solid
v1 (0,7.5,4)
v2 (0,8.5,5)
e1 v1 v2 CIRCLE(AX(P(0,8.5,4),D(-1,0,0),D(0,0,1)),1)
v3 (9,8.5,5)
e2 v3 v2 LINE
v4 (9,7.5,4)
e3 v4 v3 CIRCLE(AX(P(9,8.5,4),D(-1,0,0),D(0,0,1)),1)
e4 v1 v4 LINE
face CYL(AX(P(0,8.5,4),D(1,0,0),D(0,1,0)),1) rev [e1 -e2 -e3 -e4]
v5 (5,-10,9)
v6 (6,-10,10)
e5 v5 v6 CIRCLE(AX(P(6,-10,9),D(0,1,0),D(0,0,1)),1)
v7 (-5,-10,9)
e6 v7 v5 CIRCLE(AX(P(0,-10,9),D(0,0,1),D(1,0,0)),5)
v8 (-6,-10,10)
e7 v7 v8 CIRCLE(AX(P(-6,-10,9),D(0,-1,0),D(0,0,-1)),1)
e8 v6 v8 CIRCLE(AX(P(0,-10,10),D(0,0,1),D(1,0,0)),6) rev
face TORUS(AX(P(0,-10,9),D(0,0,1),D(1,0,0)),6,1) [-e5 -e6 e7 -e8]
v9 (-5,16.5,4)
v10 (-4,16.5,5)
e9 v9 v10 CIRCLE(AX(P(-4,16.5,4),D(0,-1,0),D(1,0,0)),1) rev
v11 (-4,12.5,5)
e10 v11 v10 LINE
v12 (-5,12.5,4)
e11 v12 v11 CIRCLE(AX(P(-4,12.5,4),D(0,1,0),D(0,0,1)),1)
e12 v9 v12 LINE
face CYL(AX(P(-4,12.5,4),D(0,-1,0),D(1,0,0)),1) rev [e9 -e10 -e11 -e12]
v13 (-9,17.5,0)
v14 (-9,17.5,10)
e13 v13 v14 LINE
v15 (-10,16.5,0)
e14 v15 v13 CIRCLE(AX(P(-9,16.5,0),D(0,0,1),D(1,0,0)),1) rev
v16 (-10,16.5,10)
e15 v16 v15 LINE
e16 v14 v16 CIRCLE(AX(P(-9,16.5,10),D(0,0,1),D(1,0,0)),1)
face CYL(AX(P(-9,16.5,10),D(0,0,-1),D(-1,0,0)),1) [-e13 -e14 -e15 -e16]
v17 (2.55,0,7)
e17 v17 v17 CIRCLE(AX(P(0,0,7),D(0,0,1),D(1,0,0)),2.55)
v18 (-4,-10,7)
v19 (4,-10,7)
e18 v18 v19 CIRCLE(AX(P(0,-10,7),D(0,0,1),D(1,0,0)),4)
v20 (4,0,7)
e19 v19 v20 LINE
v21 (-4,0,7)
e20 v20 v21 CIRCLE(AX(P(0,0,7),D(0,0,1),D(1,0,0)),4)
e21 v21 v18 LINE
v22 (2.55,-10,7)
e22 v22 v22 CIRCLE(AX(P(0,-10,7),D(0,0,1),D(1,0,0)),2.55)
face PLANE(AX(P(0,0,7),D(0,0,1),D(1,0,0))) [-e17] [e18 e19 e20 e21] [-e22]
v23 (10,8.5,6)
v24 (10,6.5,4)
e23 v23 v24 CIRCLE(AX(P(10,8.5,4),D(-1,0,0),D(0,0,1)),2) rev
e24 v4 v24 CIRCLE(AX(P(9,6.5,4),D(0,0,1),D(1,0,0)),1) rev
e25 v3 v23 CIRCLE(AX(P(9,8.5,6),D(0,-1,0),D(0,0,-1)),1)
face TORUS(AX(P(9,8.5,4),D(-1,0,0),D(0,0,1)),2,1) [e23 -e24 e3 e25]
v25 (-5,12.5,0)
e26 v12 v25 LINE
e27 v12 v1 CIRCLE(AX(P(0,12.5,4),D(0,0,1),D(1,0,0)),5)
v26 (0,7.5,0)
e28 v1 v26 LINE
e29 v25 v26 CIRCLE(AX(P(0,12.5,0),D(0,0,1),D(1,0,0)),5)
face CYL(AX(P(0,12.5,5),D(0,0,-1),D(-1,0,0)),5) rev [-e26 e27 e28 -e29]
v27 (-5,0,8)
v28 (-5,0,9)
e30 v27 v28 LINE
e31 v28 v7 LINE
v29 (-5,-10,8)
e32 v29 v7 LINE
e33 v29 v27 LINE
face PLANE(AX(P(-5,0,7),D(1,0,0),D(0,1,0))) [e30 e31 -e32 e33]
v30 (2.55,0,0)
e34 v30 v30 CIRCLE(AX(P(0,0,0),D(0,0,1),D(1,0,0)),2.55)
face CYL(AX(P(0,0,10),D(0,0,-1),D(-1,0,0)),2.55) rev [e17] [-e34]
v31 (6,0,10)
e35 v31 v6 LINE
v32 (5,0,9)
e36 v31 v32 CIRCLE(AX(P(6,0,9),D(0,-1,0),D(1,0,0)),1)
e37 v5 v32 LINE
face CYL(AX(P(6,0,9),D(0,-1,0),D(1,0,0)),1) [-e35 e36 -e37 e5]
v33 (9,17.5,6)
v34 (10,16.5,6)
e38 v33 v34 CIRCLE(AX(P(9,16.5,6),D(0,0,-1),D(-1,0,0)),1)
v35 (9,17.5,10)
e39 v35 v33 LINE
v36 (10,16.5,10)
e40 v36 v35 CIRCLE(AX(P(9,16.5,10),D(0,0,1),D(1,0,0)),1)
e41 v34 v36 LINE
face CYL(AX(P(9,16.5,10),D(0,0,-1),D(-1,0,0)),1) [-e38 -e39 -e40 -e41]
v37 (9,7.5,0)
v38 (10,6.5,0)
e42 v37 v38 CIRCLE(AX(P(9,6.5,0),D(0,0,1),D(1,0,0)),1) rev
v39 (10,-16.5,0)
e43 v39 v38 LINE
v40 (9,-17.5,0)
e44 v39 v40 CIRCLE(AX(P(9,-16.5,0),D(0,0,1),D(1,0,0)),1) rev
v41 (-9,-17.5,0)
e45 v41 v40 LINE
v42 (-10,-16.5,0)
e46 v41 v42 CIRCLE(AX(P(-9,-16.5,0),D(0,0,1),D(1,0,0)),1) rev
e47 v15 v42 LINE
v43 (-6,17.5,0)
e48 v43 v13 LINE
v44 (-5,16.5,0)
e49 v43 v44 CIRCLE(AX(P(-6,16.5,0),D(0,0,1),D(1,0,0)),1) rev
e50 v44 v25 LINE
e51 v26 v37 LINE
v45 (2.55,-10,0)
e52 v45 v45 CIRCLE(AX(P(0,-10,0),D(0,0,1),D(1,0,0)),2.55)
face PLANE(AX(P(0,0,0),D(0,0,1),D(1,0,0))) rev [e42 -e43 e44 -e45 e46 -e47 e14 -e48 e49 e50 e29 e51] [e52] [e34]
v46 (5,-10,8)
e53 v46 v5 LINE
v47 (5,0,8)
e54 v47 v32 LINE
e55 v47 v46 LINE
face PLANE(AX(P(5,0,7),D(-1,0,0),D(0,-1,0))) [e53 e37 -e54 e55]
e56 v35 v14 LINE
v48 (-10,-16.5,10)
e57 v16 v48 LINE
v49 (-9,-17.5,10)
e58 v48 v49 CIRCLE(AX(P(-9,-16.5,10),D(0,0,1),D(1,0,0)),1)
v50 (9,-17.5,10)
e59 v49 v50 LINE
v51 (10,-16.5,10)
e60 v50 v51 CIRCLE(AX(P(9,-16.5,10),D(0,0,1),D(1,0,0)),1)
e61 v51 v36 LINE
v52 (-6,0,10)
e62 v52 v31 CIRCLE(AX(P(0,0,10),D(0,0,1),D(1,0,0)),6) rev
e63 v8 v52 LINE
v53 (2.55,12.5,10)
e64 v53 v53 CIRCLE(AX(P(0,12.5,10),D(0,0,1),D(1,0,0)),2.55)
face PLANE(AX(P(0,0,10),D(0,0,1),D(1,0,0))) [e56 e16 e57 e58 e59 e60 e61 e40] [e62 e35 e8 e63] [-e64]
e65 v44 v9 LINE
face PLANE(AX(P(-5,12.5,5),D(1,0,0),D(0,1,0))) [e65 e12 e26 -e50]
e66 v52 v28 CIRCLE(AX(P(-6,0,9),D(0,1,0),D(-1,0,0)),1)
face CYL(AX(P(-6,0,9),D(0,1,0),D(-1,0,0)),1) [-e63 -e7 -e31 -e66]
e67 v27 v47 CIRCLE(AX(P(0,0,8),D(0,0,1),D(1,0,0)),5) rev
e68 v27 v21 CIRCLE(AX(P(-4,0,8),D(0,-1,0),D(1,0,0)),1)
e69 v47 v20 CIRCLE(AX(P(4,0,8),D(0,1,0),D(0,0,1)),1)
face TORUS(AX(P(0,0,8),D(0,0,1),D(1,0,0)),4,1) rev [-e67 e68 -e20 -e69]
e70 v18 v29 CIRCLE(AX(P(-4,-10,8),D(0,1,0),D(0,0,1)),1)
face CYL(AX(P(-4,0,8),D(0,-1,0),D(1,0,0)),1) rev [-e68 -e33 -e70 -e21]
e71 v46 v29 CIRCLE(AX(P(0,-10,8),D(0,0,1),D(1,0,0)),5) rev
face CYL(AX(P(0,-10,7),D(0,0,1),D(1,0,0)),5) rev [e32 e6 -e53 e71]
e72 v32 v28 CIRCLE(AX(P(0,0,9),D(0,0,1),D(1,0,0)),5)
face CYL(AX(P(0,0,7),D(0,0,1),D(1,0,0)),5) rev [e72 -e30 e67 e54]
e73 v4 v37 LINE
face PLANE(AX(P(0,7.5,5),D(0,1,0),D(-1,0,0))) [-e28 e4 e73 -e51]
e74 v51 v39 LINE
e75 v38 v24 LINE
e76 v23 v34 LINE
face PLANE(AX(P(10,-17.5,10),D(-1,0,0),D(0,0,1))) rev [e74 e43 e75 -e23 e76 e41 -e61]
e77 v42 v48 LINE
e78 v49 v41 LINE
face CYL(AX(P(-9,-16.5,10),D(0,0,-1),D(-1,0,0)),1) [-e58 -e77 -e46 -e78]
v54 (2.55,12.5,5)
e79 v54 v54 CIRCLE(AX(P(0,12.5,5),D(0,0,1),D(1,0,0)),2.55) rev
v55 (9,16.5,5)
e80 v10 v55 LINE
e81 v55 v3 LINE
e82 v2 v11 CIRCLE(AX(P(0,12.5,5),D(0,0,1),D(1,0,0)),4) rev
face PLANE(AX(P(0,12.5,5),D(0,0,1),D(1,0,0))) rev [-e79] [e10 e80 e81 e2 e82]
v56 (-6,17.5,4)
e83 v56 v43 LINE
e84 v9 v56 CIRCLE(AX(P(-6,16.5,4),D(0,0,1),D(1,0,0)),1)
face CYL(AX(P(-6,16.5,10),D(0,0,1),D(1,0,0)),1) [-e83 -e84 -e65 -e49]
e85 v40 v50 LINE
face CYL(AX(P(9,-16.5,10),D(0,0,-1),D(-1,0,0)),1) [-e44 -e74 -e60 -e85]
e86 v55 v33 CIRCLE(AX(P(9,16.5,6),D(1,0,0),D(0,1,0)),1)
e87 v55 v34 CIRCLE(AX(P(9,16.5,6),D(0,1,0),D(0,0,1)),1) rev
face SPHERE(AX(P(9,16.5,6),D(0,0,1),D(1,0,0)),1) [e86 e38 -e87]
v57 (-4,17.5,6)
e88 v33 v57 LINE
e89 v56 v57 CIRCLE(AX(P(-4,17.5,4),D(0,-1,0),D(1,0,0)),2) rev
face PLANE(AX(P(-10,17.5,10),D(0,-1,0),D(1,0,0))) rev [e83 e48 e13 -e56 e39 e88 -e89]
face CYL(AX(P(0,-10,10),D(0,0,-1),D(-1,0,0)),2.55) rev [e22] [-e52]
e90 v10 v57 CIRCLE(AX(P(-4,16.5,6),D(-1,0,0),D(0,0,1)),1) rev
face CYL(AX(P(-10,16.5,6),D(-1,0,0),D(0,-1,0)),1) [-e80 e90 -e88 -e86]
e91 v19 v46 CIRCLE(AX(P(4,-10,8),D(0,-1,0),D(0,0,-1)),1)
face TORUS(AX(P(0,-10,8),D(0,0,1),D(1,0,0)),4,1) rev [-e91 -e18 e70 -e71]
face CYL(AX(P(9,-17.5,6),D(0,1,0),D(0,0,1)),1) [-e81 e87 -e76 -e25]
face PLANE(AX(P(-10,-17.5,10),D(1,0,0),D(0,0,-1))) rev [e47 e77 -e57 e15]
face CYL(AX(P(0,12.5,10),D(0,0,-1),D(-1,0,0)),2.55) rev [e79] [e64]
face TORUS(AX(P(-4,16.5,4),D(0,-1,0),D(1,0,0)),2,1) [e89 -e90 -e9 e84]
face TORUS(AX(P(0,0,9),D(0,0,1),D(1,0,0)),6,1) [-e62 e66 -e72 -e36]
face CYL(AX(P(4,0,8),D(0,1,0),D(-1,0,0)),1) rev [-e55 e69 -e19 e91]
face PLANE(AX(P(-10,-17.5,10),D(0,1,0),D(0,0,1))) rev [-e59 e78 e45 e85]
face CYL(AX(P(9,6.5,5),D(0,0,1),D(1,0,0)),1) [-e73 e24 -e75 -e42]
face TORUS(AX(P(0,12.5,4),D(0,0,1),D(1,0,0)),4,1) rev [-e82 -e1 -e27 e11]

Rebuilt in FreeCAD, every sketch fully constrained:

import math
import FreeCAD as App
import Part
import Sketcher
Q = App.Units.Quantity


def edges_at(feature, points):
    """Names of the edges that pass closest to the given points."""
    edges = feature.Shape.Edges
    near = lambda p: min(range(len(edges)), key=lambda i: edges[i].distToShape(Part.Vertex(*p))[0])
    return sorted({f"Edge{near(p) + 1}" for p in points})

doc = App.newDocument("Part")
body = doc.addObject("PartDesign::Body", "Body")

# Sketch on XY plane
sketch1 = body.newObject("Sketcher::SketchObject", "Sketch")
sketch1.AttachmentSupport = (doc.getObject("XY_Plane"), [""])
sketch1.MapMode = "FlatFace"
sketch1.addGeometry([
    Part.LineSegment(App.Vector(-10, 17.5, 0), App.Vector(-10, -17.5, 0)),  # 0
    Part.LineSegment(App.Vector(-10, -17.5, 0), App.Vector(10, -17.5, 0)),  # 1
    Part.LineSegment(App.Vector(10, -17.5, 0), App.Vector(10, 17.5, 0)),  # 2
    Part.LineSegment(App.Vector(10, 17.5, 0), App.Vector(-10, 17.5, 0)),  # 3
    Part.Circle(App.Vector(0, -10, 0), App.Vector(0, 0, 1), 2.55),  # 4
    Part.Circle(App.Vector(0, 0, 0), App.Vector(0, 0, 1), 2.55),  # 5
], False)
sketch1.addConstraint([
    Sketcher.Constraint("Coincident", 0, 2, 1, 1),
    Sketcher.Constraint("Coincident", 1, 2, 2, 1),
    Sketcher.Constraint("Coincident", 2, 2, 3, 1),
    Sketcher.Constraint("Coincident", 3, 2, 0, 1),
    Sketcher.Constraint("Vertical", 0),
    Sketcher.Constraint("Horizontal", 1),
    Sketcher.Constraint("Vertical", 2),
    Sketcher.Constraint("Horizontal", 3),
    Sketcher.Constraint("Coincident", 5, 3, -1, 1),
    Sketcher.Constraint("Equal", 4, 5),
    Sketcher.Constraint("Symmetric", 0, 2, 2, 2, -1, 1),
    Sketcher.Constraint("PointOnObject", 4, 3, -2),
    Sketcher.Constraint("Diameter", 4, Q("5.1 mm")),
    Sketcher.Constraint("DistanceX", 1, 1, 1, 2, Q("20 mm")),
    Sketcher.Constraint("DistanceY", 0, 2, 0, 1, Q("35 mm")),
    Sketcher.Constraint("DistanceY", 4, 3, -1, 1, Q("10 mm")),
])
pad1 = body.newObject("PartDesign::Pad", "Pad")
pad1.Profile = sketch1
pad1.Length = 10

# Sketch on XY plane
sketch2 = body.newObject("Sketcher::SketchObject", "Sketch001")
sketch2.AttachmentSupport = (doc.getObject("XY_Plane"), [""])
sketch2.MapMode = "FlatFace"
sketch2.addGeometry([
    Part.LineSegment(App.Vector(-5, 17.5, 0), App.Vector(-5, 12.5, 0)),  # 0
    Part.ArcOfCircle(Part.Circle(App.Vector(0, 12.5, 0), App.Vector(0, 0, 1), 5), math.radians(180), math.radians(270)),  # 1
    Part.LineSegment(App.Vector(0, 7.5, 0), App.Vector(10, 7.5, 0)),  # 2
    Part.LineSegment(App.Vector(10, 7.5, 0), App.Vector(10, 17.5, 0)),  # 3
    Part.LineSegment(App.Vector(10, 17.5, 0), App.Vector(-5, 17.5, 0)),  # 4
], False)
sketch2.addConstraint([
    Sketcher.Constraint("Tangent", 0, 2, 1, 1),
    Sketcher.Constraint("Tangent", 1, 2, 2, 1),
    Sketcher.Constraint("Coincident", 2, 2, 3, 1),
    Sketcher.Constraint("Coincident", 3, 2, 4, 1),
    Sketcher.Constraint("Coincident", 4, 2, 0, 1),
    Sketcher.Constraint("Vertical", 0),
    Sketcher.Constraint("Horizontal", 2),
    Sketcher.Constraint("Vertical", 3),
    Sketcher.Constraint("Horizontal", 4),
    Sketcher.Constraint("PointOnObject", 1, 3, -2),
    Sketcher.Constraint("Equal", 2, 3),
    Sketcher.Constraint("Radius", 1, Q("5 mm")),
    Sketcher.Constraint("DistanceX", 2, 1, 2, 2, Q("10 mm")),
    Sketcher.Constraint("DistanceY", -1, 1, 1, 3, Q("12.5 mm")),
])
pocket1 = body.newObject("PartDesign::Pocket", "Pocket")
pocket1.Profile = sketch2
pocket1.Length = 5
pocket1.Reversed = True

# Sketch on XY plane
sketch3 = body.newObject("Sketcher::SketchObject", "Sketch002")
sketch3.AttachmentSupport = (doc.getObject("XY_Plane"), [""])
sketch3.MapMode = "FlatFace"
sketch3.addGeometry(Part.Circle(App.Vector(0, 12.5, 0), App.Vector(0, 0, 1), 2.55), False)
sketch3.addConstraint([
    Sketcher.Constraint("PointOnObject", 0, 3, -2),
    Sketcher.Constraint("Diameter", 0, Q("5.1 mm")),
    Sketcher.Constraint("DistanceY", -1, 1, 0, 3, Q("12.5 mm")),
])
pocket2 = body.newObject("PartDesign::Pocket", "Pocket001")
pocket2.Profile = sketch3
pocket2.Type = "ThroughAll"
pocket2.Reversed = True

# Sketch on XY plane
sketch4 = body.newObject("Sketcher::SketchObject", "Sketch003")
sketch4.AttachmentSupport = (doc.getObject("XY_Plane"), [""])
sketch4.MapMode = "FlatFace"
sketch4.AttachmentOffset = App.Placement(App.Vector(0, 0, 10), App.Rotation())
sketch4.addGeometry([
    Part.LineSegment(App.Vector(-5, 0, 0), App.Vector(-5, -10, 0)),
    Part.ArcOfCircle(Part.Circle(App.Vector(0, -10, 0), App.Vector(0, 0, 1), 5), math.radians(180), math.radians(360)),
    Part.LineSegment(App.Vector(5, -10, 0), App.Vector(5, 0, 0)),
    Part.ArcOfCircle(Part.Circle(App.Vector(0, 0, 0), App.Vector(0, 0, 1), 5), math.radians(0), math.radians(180)),
], False)
sketch4.addConstraint([
    Sketcher.Constraint("Tangent", 0, 2, 1, 1),
    Sketcher.Constraint("Tangent", 1, 2, 2, 1),
    Sketcher.Constraint("Tangent", 2, 2, 3, 1),
    Sketcher.Constraint("Tangent", 3, 2, 0, 1),
    Sketcher.Constraint("Vertical", 0),
    Sketcher.Constraint("Vertical", 2),
    Sketcher.Constraint("Coincident", 3, 3, -1, 1),
    Sketcher.Constraint("Radius", 1, Q("5 mm")),
    Sketcher.Constraint("DistanceY", 0, 2, 0, 1, Q("10 mm")),
])
pocket3 = body.newObject("PartDesign::Pocket", "Pocket002")
pocket3.Profile = sketch4
pocket3.Length = 3
doc.recompute()

fillet = body.newObject("PartDesign::Fillet", "Fillet")
fillet.Base = (pocket3, edges_at(pocket3, [
    (10, 7.5, 2.5),
    (-5, 17.5, 2.5),
    (-3.536, 8.964, 5),
    (5, 7.5, 5),
    (10, 12.5, 5),
    (2.5, 17.5, 5),
    (-5, 15, 5),
    (-5, -5, 10),
    (0, 5, 7),
    (5, -5, 10),
    (0, -15, 7),
    (-5, -5, 7),
    (5, -5, 7),
    (0, -15, 10),
    (0, 5, 10),
    (10, 17.5, 7.5),
    (10, -17.5, 5),
    (-10, -17.5, 5),
    (-10, 17.5, 5),
]))
fillet.Radius = 1

doc.recompute()
